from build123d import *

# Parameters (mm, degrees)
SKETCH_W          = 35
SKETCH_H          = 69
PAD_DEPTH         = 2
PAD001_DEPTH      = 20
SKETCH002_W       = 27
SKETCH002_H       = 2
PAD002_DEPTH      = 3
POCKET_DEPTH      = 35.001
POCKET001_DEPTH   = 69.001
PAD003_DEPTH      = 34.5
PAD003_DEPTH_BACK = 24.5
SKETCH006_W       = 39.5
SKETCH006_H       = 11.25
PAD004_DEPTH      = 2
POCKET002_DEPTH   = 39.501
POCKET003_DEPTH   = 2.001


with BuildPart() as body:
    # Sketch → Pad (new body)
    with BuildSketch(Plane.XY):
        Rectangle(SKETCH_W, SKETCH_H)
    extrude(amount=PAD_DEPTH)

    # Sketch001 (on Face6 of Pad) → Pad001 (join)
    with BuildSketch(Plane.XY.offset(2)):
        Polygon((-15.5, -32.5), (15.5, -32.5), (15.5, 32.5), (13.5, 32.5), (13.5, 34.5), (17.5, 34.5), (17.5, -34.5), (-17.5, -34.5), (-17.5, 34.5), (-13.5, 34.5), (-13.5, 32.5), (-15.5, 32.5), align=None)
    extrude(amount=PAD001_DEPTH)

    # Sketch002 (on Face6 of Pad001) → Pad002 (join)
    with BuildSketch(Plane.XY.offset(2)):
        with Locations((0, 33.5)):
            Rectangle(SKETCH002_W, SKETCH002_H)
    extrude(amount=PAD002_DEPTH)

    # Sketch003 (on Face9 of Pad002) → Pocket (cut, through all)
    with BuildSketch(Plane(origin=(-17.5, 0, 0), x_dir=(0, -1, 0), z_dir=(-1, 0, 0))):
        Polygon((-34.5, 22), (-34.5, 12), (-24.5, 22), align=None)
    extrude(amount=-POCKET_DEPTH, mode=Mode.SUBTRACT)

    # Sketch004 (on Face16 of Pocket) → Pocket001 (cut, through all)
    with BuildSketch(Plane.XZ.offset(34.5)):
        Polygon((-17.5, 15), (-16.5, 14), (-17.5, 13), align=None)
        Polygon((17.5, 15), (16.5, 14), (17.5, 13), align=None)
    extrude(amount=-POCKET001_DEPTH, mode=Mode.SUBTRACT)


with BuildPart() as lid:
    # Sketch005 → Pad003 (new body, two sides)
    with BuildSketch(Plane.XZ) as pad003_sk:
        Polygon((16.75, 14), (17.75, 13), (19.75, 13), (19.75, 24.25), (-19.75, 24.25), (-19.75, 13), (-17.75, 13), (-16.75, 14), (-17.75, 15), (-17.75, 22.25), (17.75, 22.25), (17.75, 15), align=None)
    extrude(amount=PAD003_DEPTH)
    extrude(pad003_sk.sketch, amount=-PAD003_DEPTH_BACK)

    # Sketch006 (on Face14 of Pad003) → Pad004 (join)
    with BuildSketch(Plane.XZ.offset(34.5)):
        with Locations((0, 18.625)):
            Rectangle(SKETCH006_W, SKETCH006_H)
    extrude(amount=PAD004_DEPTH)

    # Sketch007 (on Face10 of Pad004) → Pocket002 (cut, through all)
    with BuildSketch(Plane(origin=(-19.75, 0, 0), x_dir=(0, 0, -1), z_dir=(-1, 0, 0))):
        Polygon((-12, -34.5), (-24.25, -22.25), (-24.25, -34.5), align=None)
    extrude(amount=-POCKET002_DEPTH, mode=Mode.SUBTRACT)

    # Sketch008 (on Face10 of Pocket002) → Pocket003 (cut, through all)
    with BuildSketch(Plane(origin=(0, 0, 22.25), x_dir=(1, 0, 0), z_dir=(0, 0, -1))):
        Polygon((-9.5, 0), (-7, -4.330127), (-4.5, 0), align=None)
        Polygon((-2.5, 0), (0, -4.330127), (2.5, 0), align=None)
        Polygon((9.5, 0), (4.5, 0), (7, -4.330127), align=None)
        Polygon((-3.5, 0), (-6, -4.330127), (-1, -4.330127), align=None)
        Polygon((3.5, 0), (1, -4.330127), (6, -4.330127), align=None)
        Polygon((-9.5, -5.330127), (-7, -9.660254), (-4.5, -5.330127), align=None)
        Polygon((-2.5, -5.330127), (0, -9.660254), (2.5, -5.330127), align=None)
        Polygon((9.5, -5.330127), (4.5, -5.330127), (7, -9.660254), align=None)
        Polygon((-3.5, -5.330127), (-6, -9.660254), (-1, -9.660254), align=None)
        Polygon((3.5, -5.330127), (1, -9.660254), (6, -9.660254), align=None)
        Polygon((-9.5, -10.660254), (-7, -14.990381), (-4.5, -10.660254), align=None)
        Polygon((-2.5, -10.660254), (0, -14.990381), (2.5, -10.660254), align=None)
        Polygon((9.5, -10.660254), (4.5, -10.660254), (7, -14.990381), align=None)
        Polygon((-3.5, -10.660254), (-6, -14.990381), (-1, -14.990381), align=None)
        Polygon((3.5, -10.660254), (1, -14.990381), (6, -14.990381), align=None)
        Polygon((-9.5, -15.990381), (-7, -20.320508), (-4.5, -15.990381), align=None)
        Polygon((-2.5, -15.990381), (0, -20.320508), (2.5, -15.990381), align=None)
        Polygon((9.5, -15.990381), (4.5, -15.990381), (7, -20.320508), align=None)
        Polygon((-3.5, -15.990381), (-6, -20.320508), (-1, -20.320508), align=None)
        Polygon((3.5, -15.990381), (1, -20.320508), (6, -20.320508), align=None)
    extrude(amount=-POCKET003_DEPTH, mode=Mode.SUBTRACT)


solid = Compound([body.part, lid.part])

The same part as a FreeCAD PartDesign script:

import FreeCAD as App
import Part
import Sketcher
from FreeCAD import Vector
Q = App.Units.Quantity


def add_polygon(sketch, points):
    """Adds a closed chain of lines whose ends are joined by coincident constraints."""
    first, n = sketch.GeometryCount, len(points)
    for a, b in zip(points, points[1:] + points[:1]):
        sketch.addGeometry(Part.LineSegment(App.Vector(*a, 0), App.Vector(*b, 0)), False)
    for i in range(n):
        sketch.addConstraint(Sketcher.Constraint("Coincident", first + i, 2, first + (i + 1) % n, 1))

doc = App.newDocument("Part")
body = doc.addObject("PartDesign::Body", "Body")

# Sketch on XY plane
sketch1 = body.newObject("Sketcher::SketchObject", "Sketch")
sketch1.AttachmentSupport = (doc.getObject("XY_Plane"), [""])
sketch1.MapMode = "FlatFace"
add_polygon(sketch1, [(-18, 34), (-18, -34), (18, -34), (18, 34)])  # lines 0-3
sketch1.addConstraint([
    Sketcher.Constraint("Vertical", 0),
    Sketcher.Constraint("Horizontal", 1),
    Sketcher.Constraint("Vertical", 2),
    Sketcher.Constraint("Horizontal", 3),
    Sketcher.Constraint("Symmetric", 0, 2, 2, 2, -1, 1),
    Sketcher.Constraint("DistanceX", 1, 1, 1, 2, Q("35 mm")),
    Sketcher.Constraint("DistanceY", 0, 2, 0, 1, Q("69 mm")),
])
pad1 = body.newObject("PartDesign::Pad", "Pad")
pad1.Profile = sketch1
pad1.Length = 2

# Sketch on XY plane
sketch2 = body.newObject("Sketcher::SketchObject", "Sketch001")
sketch2.AttachmentSupport = (doc.getObject("XY_Plane"), [""])
sketch2.MapMode = "FlatFace"
sketch2.AttachmentOffset = App.Placement(Vector(0, 0, 2), App.Rotation())
add_polygon(sketch2, [(15.5, -32.5), (-15.5, -32.5), (-15.5, 32.5), (-13.5, 32.5), (-13.5, 34.5), (-17.5, 34.5), (-17.5, -34.5), (17.5, -34.5), (17.5, 34.5), (13.5, 34.5), (13.5, 32.5), (15.5, 32.5)])  # lines 0-11
sketch2.addConstraint([
    Sketcher.Constraint("Horizontal", 0),
    Sketcher.Constraint("Vertical", 1),
    Sketcher.Constraint("Horizontal", 2),
    Sketcher.Constraint("Vertical", 3),
    Sketcher.Constraint("Horizontal", 4),
    Sketcher.Constraint("Vertical", 5),
    Sketcher.Constraint("Horizontal", 6),
    Sketcher.Constraint("Vertical", 7),
    Sketcher.Constraint("Horizontal", 8),
    Sketcher.Constraint("Vertical", 9),
    Sketcher.Constraint("Horizontal", 10),
    Sketcher.Constraint("Vertical", 11),
    Sketcher.Constraint("Symmetric", 4, 2, 6, 2, -1, 1),
    Sketcher.Constraint("Symmetric", 0, 2, 10, 2, -1, 1),
    Sketcher.Constraint("Symmetric", 3, 2, 8, 2, -2),
    Sketcher.Constraint("Horizontal", 2, 2, 9, 2),
    Sketcher.Constraint("Equal", 10, 3),
    Sketcher.Constraint("DistanceX", 0, 2, 0, 1, Q("31 mm")),
    Sketcher.Constraint("DistanceX", 2, 1, 2, 2, Q("2 mm")),
    Sketcher.Constraint("DistanceX", 4, 2, 4, 1, Q("4 mm")),
    Sketcher.Constraint("DistanceY", 1, 1, 1, 2, Q("65 mm")),
])
pad2 = body.newObject("PartDesign::Pad", "Pad001")
pad2.Profile = sketch2
pad2.Length = 20

# Sketch on XY plane
sketch3 = body.newObject("Sketcher::SketchObject", "Sketch002")
sketch3.AttachmentSupport = (doc.getObject("XY_Plane"), [""])
sketch3.MapMode = "FlatFace"
sketch3.AttachmentOffset = App.Placement(Vector(0, 0, 2), App.Rotation())
add_polygon(sketch3, [(-13.5, 34.5), (-13.5, 32.5), (13.5, 32.5), (13.5, 34.5)])  # lines 0-3
sketch3.addConstraint([
    Sketcher.Constraint("Vertical", 0),
    Sketcher.Constraint("Horizontal", 1),
    Sketcher.Constraint("Vertical", 2),
    Sketcher.Constraint("Horizontal", 3),
    Sketcher.Constraint("DistanceX", 1, 1, 1, 2, Q("27 mm")),
    Sketcher.Constraint("DistanceY", 0, 2, 0, 1, Q("2 mm")),
    Sketcher.Constraint("DistanceX", 0, 2, -1, 1, Q("13.5 mm")),
    Sketcher.Constraint("DistanceY", -1, 1, 0, 2, Q("32.5 mm")),
])
pad3 = body.newObject("PartDesign::Pad", "Pad002")
pad3.Profile = sketch3
pad3.Length = 3

# Sketch on YZ plane
sketch4 = body.newObject("Sketcher::SketchObject", "Sketch003")
sketch4.AttachmentSupport = (doc.getObject("YZ_Plane"), [""])
sketch4.MapMode = "FlatFace"
sketch4.AttachmentOffset = App.Placement(Vector(0, 0, -17.5), App.Rotation())
add_polygon(sketch4, [(34, 22), (34, 12), (24, 22)])  # lines 0-2
sketch4.addConstraint([
    Sketcher.Constraint("Vertical", 0),
    Sketcher.Constraint("Horizontal", 2),
    Sketcher.Constraint("Equal", 2, 0),
    Sketcher.Constraint("DistanceX", 2, 1, 2, 2, Q("10 mm")),
    Sketcher.Constraint("DistanceY", -1, 1, 0, 2, Q("12 mm")),
    Sketcher.Constraint("DistanceX", -1, 1, 0, 2, Q("34.5 mm")),
])
pocket1 = body.newObject("PartDesign::Pocket", "Pocket")
pocket1.Profile = sketch4
pocket1.Type = "ThroughAll"
pocket1.Reversed = True

# Sketch on XZ plane
sketch5 = body.newObject("Sketcher::SketchObject", "Sketch004")
sketch5.AttachmentSupport = (doc.getObject("XZ_Plane"), [""])
sketch5.MapMode = "FlatFace"
sketch5.AttachmentOffset = App.Placement(Vector(0, 0, 34.5), App.Rotation())
add_polygon(sketch5, [(-16.5, 14), (-17.5, 15), (-17.5, 13)])  # lines 0-2
add_polygon(sketch5, [(17.5, 15), (16.5, 14), (17.5, 13)])  # lines 3-5
sketch5.addConstraint([
    Sketcher.Constraint("Vertical", 1),
    Sketcher.Constraint("Vertical", 5),
    Sketcher.Constraint("Symmetric", 2, 2, 3, 2, -2),
    Sketcher.Constraint("Symmetric", 1, 2, 4, 2, -2),
    Sketcher.Constraint("Perpendicular", 0, 2),
    Sketcher.Constraint("Parallel", 2, 3),
    Sketcher.Constraint("Perpendicular", 3, 4),
    Sketcher.Constraint("DistanceY", 1, 2, 1, 1, Q("2 mm")),
    Sketcher.Constraint("DistanceY", -1, 1, 0, 2, Q("15 mm")),
    Sketcher.Constraint("DistanceX", 2, 2, 3, 2, Q("33 mm")),
])
pocket2 = body.newObject("PartDesign::Pocket", "Pocket001")
pocket2.Profile = sketch5
pocket2.Type = "ThroughAll"
body2 = doc.addObject("PartDesign::Body", "Body001")

# Sketch on XZ plane
sketch6 = body2.newObject("Sketcher::SketchObject", "Sketch005")
sketch6.AttachmentSupport = (doc.getObject("XZ_Plane001"), [""])
sketch6.MapMode = "FlatFace"
add_polygon(sketch6, [(16.8, 14), (17.8, 13), (19.8, 13), (19.8, 24.2), (-19.8, 24.2), (-19.8, 13), (-17.8, 13), (-16.8, 14), (-17.8, 15), (-17.8, 22.2), (17.8, 22.2), (17.8, 15)])  # lines 0-11
sketch6.addConstraint([
    Sketcher.Constraint("Horizontal", 1),
    Sketcher.Constraint("Vertical", 2),
    Sketcher.Constraint("Horizontal", 3),
    Sketcher.Constraint("Vertical", 4),
    Sketcher.Constraint("Horizontal", 5),
    Sketcher.Constraint("Vertical", 8),
    Sketcher.Constraint("Horizontal", 9),
    Sketcher.Constraint("Vertical", 10),
    Sketcher.Constraint("Symmetric", 1, 2, 4, 2, -2),
    Sketcher.Constraint("Symmetric", 7, 2, 10, 2, -2),
    Sketcher.Constraint("Symmetric", 6, 2, 11, 2, -2),
    Sketcher.Constraint("Perpendicular", 0, 6),
    Sketcher.Constraint("Perpendicular", 6, 7),
    Sketcher.Constraint("Perpendicular", 7, 11),
    Sketcher.Constraint("Vertical", 5, 2, 7, 2),
    Sketcher.Constraint("DistanceX", 1, 1, 1, 2, Q("2 mm")),
    Sketcher.Constraint("DistanceX", 3, 2, 3, 1, Q("39.5 mm")),
    Sketcher.Constraint("DistanceY", -1, 1, 0, 2, Q("13 mm")),
    Sketcher.Constraint("DistanceY", -1, 1, 6, 2, Q("14 mm")),
    Sketcher.Constraint("DistanceY", 8, 2, 3, 2, Q("2 mm")),
    Sketcher.Constraint("DistanceY", 2, 1, 2, 2, Q("11.25 mm")),
])
pad4 = body2.newObject("PartDesign::Pad", "Pad003")
pad4.Profile = sketch6
pad4.Type = "TwoLengths"
pad4.Length = 34.5
pad4.Length2 = 24.5

# Sketch on XZ plane
sketch7 = body2.newObject("Sketcher::SketchObject", "Sketch006")
sketch7.AttachmentSupport = (doc.getObject("XZ_Plane001"), [""])
sketch7.MapMode = "FlatFace"
sketch7.AttachmentOffset = App.Placement(Vector(0, 0, 34.5), App.Rotation())
add_polygon(sketch7, [(-20, 24), (-20, 13), (20, 13), (20, 24)])  # lines 0-3
sketch7.addConstraint([
    Sketcher.Constraint("Vertical", 0),
    Sketcher.Constraint("Horizontal", 1),
    Sketcher.Constraint("Vertical", 2),
    Sketcher.Constraint("Horizontal", 3),
    Sketcher.Constraint("DistanceX", 1, 1, 1, 2, Q("39.5 mm")),
    Sketcher.Constraint("DistanceY", -1, 1, 0, 2, Q("13 mm")),
    Sketcher.Constraint("DistanceY", 0, 2, 0, 1, Q("11.25 mm")),
    Sketcher.Constraint("DistanceX", 0, 2, -1, 1, Q("19.75 mm")),
])
pad5 = body2.newObject("PartDesign::Pad", "Pad004")
pad5.Profile = sketch7
pad5.Length = 2

# Sketch on YZ plane
sketch8 = body2.newObject("Sketcher::SketchObject", "Sketch007")
sketch8.AttachmentSupport = (doc.getObject("YZ_Plane001"), [""])
sketch8.MapMode = "FlatFace"
sketch8.AttachmentOffset = App.Placement(Vector(0, 0, -19.75), App.Rotation())
add_polygon(sketch8, [(34, 12), (22, 24), (34, 24)])  # lines 0-2
sketch8.addConstraint([
    Sketcher.Constraint("Horizontal", 1),
    Sketcher.Constraint("Vertical", 2),
    Sketcher.Constraint("Equal", 1, 2),
    Sketcher.Constraint("DistanceY", -1, 1, 2, 2, Q("12 mm")),
    Sketcher.Constraint("DistanceX", 1, 1, 1, 2, Q("12.25 mm")),
    Sketcher.Constraint("DistanceX", -1, 1, 1, 2, Q("34.5 mm")),
])
pocket3 = body2.newObject("PartDesign::Pocket", "Pocket002")
pocket3.Profile = sketch8
pocket3.Type = "ThroughAll"
pocket3.Reversed = True

# Sketch on XY plane
sketch9 = body2.newObject("Sketcher::SketchObject", "Sketch008")
sketch9.AttachmentSupport = (doc.getObject("XY_Plane001"), [""])
sketch9.MapMode = "FlatFace"
sketch9.AttachmentOffset = App.Placement(Vector(0, 0, 22.25), App.Rotation())
add_polygon(sketch9, [(-9.5, 0), (-7, 4.3), (-4.5, 0)])  # lines 0-2
add_polygon(sketch9, [(-2.5, 0), (0, 4.3), (2.5, 0)])  # lines 3-5
add_polygon(sketch9, [(9.5, 0), (4.5, 0), (7, 4.3)])  # lines 6-8
add_polygon(sketch9, [(-3.5, 0), (-6, 4.3), (-1, 4.3)])  # lines 9-11
add_polygon(sketch9, [(3.5, 0), (1, 4.3), (6, 4.3)])  # lines 12-14
add_polygon(sketch9, [(-9.5, 5.3), (-7, 9.7), (-4.5, 5.3)])  # lines 15-17
add_polygon(sketch9, [(-2.5, 5.3), (0, 9.7), (2.5, 5.3)])  # lines 18-20
add_polygon(sketch9, [(9.5, 5.3), (4.5, 5.3), (7, 9.7)])  # lines 21-23
add_polygon(sketch9, [(-3.5, 5.3), (-6, 9.7), (-1, 9.7)])  # lines 24-26
add_polygon(sketch9, [(3.5, 5.3), (1, 9.7), (6, 9.7)])  # lines 27-29
add_polygon(sketch9, [(-9.5, 10.7), (-7, 15), (-4.5, 10.7)])  # lines 30-32
add_polygon(sketch9, [(-2.5, 10.7), (0, 15), (2.5, 10.7)])  # lines 33-35
add_polygon(sketch9, [(9.5, 10.7), (4.5, 10.7), (7, 15)])  # lines 36-38
add_polygon(sketch9, [(-3.5, 10.7), (-6, 15), (-1, 15)])  # lines 39-41
add_polygon(sketch9, [(3.5, 10.7), (1, 15), (6, 15)])  # lines 42-44
add_polygon(sketch9, [(-9.5, 16), (-7, 20.3), (-4.5, 16)])  # lines 45-47
add_polygon(sketch9, [(-2.5, 16), (0, 20.3), (2.5, 16)])  # lines 48-50
add_polygon(sketch9, [(9.5, 16), (4.5, 16), (7, 20.3)])  # lines 51-53
add_polygon(sketch9, [(-3.5, 16), (-6, 20.3), (-1, 20.3)])  # lines 54-56
add_polygon(sketch9, [(3.5, 16), (1, 20.3), (6, 20.3)])  # lines 57-59
sketch9.addConstraint([
    Sketcher.Constraint("Horizontal", 2),
    Sketcher.Constraint("Horizontal", 5),
    Sketcher.Constraint("Horizontal", 6),
    Sketcher.Constraint("Horizontal", 10),
    Sketcher.Constraint("Horizontal", 13),
    Sketcher.Constraint("Horizontal", 17),
    Sketcher.Constraint("Horizontal", 20),
    Sketcher.Constraint("Horizontal", 21),
    Sketcher.Constraint("Horizontal", 25),
    Sketcher.Constraint("Horizontal", 28),
    Sketcher.Constraint("Horizontal", 32),
    Sketcher.Constraint("Horizontal", 35),
    Sketcher.Constraint("Horizontal", 36),
    Sketcher.Constraint("Horizontal", 40),
    Sketcher.Constraint("Horizontal", 43),
    Sketcher.Constraint("Horizontal", 47),
    Sketcher.Constraint("Horizontal", 50),
    Sketcher.Constraint("Horizontal", 51),
    Sketcher.Constraint("Horizontal", 55),
    Sketcher.Constraint("Horizontal", 58),
    Sketcher.Constraint("Symmetric", 4, 2, 5, 2, -1, 1),
    Sketcher.Constraint("Symmetric", 1, 2, 6, 2, -1, 1),
    Sketcher.Constraint("Symmetric", 11, 2, 14, 2, -1, 1),
    Sketcher.Constraint("Symmetric", 0, 2, 7, 2, -2),
    Sketcher.Constraint("Symmetric", 2, 2, 8, 2, -2),
    Sketcher.Constraint("Symmetric", 10, 2, 12, 2, -2),
    Sketcher.Constraint("Symmetric", 16, 2, 21, 2, -2),
    Sketcher.Constraint("Symmetric", 15, 2, 22, 2, -2),
    Sketcher.Constraint("Symmetric", 25, 2, 27, 2, -2),
    Sketcher.Constraint("Symmetric", 26, 2, 29, 2, -2),
    Sketcher.Constraint("Symmetric", 31, 2, 36, 2, -2),
    Sketcher.Constraint("Symmetric", 30, 2, 37, 2, -2),
    Sketcher.Constraint("Symmetric", 40, 2, 42, 2, -2),
    Sketcher.Constraint("Symmetric", 41, 2, 44, 2, -2),
    Sketcher.Constraint("Symmetric", 46, 2, 51, 2, -2),
    Sketcher.Constraint("Symmetric", 45, 2, 52, 2, -2),
    Sketcher.Constraint("Symmetric", 55, 2, 57, 2, -2),
    Sketcher.Constraint("Symmetric", 56, 2, 59, 2, -2),
    Sketcher.Constraint("PointOnObject", 3, 2, -2),
    Sketcher.Constraint("PointOnObject", 11, 2, -1),
    Sketcher.Constraint("PointOnObject", 18, 2, -2),
    Sketcher.Constraint("PointOnObject", 33, 2, -2),
    Sketcher.Constraint("PointOnObject", 48, 2, -2),
    Sketcher.Constraint("Parallel", 0, 3),
    Sketcher.Constraint("Parallel", 1, 4),
    Sketcher.Constraint("Parallel", 8, 9),
    Sketcher.Constraint("Parallel", 7, 11),
    Sketcher.Constraint("Parallel", 11, 14),
    Sketcher.Constraint("Parallel", 14, 15),
    Sketcher.Constraint("Parallel", 12, 16),
    Sketcher.Constraint("Parallel", 15, 18),
    Sketcher.Constraint("Parallel", 16, 19),
    Sketcher.Constraint("Parallel", 19, 23),
    Sketcher.Constraint("Parallel", 23, 24),
    Sketcher.Constraint("Parallel", 22, 26),
    Sketcher.Constraint("Parallel", 26, 29),
    Sketcher.Constraint("Parallel", 29, 30),
    Sketcher.Constraint("Parallel", 27, 31),
    Sketcher.Constraint("Parallel", 30, 33),
    Sketcher.Constraint("Parallel", 31, 34),
    Sketcher.Constraint("Parallel", 34, 38),
    Sketcher.Constraint("Parallel", 38, 39),
    Sketcher.Constraint("Parallel", 37, 41),
    Sketcher.Constraint("Parallel", 41, 44),
    Sketcher.Constraint("Parallel", 44, 45),
    Sketcher.Constraint("Parallel", 42, 46),
    Sketcher.Constraint("Parallel", 45, 48),
    Sketcher.Constraint("Parallel", 46, 49),
    Sketcher.Constraint("Parallel", 49, 53),
    Sketcher.Constraint("Parallel", 53, 54),
    Sketcher.Constraint("Parallel", 52, 56),
    Sketcher.Constraint("Parallel", 56, 59),
    Sketcher.Constraint("Horizontal", 0, 2, 3, 2),
    Sketcher.Constraint("Horizontal", 7, 2, 9, 2),
    Sketcher.Constraint("Horizontal", 15, 2, 18, 2),
    Sketcher.Constraint("Horizontal", 17, 2, 19, 2),
    Sketcher.Constraint("Horizontal", 22, 2, 24, 2),
    Sketcher.Constraint("Horizontal", 23, 2, 26, 2),
    Sketcher.Constraint("Horizontal", 30, 2, 33, 2),
    Sketcher.Constraint("Horizontal", 32, 2, 34, 2),
    Sketcher.Constraint("Horizontal", 37, 2, 39, 2),
    Sketcher.Constraint("Horizontal", 38, 2, 41, 2),
    Sketcher.Constraint("Horizontal", 45, 2, 48, 2),
    Sketcher.Constraint("Horizontal", 47, 2, 49, 2),
    Sketcher.Constraint("Horizontal", 52, 2, 54, 2),
    Sketcher.Constraint("Horizontal", 53, 2, 56, 2),
    Sketcher.Constraint("Vertical", 0, 2, 15, 2),
    Sketcher.Constraint("Vertical", 1, 2, 16, 2),
    Sketcher.Constraint("Vertical", 9, 2, 24, 2),
    Sketcher.Constraint("Vertical", 15, 2, 30, 2),
    Sketcher.Constraint("Vertical", 16, 2, 31, 2),
    Sketcher.Constraint("Vertical", 24, 2, 39, 2),
    Sketcher.Constraint("Vertical", 30, 2, 45, 2),
    Sketcher.Constraint("Vertical", 31, 2, 46, 2),
    Sketcher.Constraint("Vertical", 39, 2, 54, 2),
    Sketcher.Constraint("DistanceX", 2, 2, 2, 1, Q("5 mm")),
    Sketcher.Constraint("Angle", 0, Q("60 deg")),
    Sketcher.Constraint("DistanceX", 0, 2, -1, 1, Q("7 mm")),
    Sketcher.Constraint("DistanceX", 9, 2, -1, 1, Q("6 mm")),
    Sketcher.Constraint("DistanceY", 9, 2, 16, 2, Q("1 mm")),
    Sketcher.Constraint("DistanceY", 24, 2, 31, 2, Q("1 mm")),
    Sketcher.Constraint("DistanceY", 39, 2, 46, 2, Q("1 mm")),
])
pocket4 = body2.newObject("PartDesign::Pocket", "Pocket003")
pocket4.Profile = sketch9
pocket4.Type = "ThroughAll"
pocket4.Reversed = True

doc.recompute()
